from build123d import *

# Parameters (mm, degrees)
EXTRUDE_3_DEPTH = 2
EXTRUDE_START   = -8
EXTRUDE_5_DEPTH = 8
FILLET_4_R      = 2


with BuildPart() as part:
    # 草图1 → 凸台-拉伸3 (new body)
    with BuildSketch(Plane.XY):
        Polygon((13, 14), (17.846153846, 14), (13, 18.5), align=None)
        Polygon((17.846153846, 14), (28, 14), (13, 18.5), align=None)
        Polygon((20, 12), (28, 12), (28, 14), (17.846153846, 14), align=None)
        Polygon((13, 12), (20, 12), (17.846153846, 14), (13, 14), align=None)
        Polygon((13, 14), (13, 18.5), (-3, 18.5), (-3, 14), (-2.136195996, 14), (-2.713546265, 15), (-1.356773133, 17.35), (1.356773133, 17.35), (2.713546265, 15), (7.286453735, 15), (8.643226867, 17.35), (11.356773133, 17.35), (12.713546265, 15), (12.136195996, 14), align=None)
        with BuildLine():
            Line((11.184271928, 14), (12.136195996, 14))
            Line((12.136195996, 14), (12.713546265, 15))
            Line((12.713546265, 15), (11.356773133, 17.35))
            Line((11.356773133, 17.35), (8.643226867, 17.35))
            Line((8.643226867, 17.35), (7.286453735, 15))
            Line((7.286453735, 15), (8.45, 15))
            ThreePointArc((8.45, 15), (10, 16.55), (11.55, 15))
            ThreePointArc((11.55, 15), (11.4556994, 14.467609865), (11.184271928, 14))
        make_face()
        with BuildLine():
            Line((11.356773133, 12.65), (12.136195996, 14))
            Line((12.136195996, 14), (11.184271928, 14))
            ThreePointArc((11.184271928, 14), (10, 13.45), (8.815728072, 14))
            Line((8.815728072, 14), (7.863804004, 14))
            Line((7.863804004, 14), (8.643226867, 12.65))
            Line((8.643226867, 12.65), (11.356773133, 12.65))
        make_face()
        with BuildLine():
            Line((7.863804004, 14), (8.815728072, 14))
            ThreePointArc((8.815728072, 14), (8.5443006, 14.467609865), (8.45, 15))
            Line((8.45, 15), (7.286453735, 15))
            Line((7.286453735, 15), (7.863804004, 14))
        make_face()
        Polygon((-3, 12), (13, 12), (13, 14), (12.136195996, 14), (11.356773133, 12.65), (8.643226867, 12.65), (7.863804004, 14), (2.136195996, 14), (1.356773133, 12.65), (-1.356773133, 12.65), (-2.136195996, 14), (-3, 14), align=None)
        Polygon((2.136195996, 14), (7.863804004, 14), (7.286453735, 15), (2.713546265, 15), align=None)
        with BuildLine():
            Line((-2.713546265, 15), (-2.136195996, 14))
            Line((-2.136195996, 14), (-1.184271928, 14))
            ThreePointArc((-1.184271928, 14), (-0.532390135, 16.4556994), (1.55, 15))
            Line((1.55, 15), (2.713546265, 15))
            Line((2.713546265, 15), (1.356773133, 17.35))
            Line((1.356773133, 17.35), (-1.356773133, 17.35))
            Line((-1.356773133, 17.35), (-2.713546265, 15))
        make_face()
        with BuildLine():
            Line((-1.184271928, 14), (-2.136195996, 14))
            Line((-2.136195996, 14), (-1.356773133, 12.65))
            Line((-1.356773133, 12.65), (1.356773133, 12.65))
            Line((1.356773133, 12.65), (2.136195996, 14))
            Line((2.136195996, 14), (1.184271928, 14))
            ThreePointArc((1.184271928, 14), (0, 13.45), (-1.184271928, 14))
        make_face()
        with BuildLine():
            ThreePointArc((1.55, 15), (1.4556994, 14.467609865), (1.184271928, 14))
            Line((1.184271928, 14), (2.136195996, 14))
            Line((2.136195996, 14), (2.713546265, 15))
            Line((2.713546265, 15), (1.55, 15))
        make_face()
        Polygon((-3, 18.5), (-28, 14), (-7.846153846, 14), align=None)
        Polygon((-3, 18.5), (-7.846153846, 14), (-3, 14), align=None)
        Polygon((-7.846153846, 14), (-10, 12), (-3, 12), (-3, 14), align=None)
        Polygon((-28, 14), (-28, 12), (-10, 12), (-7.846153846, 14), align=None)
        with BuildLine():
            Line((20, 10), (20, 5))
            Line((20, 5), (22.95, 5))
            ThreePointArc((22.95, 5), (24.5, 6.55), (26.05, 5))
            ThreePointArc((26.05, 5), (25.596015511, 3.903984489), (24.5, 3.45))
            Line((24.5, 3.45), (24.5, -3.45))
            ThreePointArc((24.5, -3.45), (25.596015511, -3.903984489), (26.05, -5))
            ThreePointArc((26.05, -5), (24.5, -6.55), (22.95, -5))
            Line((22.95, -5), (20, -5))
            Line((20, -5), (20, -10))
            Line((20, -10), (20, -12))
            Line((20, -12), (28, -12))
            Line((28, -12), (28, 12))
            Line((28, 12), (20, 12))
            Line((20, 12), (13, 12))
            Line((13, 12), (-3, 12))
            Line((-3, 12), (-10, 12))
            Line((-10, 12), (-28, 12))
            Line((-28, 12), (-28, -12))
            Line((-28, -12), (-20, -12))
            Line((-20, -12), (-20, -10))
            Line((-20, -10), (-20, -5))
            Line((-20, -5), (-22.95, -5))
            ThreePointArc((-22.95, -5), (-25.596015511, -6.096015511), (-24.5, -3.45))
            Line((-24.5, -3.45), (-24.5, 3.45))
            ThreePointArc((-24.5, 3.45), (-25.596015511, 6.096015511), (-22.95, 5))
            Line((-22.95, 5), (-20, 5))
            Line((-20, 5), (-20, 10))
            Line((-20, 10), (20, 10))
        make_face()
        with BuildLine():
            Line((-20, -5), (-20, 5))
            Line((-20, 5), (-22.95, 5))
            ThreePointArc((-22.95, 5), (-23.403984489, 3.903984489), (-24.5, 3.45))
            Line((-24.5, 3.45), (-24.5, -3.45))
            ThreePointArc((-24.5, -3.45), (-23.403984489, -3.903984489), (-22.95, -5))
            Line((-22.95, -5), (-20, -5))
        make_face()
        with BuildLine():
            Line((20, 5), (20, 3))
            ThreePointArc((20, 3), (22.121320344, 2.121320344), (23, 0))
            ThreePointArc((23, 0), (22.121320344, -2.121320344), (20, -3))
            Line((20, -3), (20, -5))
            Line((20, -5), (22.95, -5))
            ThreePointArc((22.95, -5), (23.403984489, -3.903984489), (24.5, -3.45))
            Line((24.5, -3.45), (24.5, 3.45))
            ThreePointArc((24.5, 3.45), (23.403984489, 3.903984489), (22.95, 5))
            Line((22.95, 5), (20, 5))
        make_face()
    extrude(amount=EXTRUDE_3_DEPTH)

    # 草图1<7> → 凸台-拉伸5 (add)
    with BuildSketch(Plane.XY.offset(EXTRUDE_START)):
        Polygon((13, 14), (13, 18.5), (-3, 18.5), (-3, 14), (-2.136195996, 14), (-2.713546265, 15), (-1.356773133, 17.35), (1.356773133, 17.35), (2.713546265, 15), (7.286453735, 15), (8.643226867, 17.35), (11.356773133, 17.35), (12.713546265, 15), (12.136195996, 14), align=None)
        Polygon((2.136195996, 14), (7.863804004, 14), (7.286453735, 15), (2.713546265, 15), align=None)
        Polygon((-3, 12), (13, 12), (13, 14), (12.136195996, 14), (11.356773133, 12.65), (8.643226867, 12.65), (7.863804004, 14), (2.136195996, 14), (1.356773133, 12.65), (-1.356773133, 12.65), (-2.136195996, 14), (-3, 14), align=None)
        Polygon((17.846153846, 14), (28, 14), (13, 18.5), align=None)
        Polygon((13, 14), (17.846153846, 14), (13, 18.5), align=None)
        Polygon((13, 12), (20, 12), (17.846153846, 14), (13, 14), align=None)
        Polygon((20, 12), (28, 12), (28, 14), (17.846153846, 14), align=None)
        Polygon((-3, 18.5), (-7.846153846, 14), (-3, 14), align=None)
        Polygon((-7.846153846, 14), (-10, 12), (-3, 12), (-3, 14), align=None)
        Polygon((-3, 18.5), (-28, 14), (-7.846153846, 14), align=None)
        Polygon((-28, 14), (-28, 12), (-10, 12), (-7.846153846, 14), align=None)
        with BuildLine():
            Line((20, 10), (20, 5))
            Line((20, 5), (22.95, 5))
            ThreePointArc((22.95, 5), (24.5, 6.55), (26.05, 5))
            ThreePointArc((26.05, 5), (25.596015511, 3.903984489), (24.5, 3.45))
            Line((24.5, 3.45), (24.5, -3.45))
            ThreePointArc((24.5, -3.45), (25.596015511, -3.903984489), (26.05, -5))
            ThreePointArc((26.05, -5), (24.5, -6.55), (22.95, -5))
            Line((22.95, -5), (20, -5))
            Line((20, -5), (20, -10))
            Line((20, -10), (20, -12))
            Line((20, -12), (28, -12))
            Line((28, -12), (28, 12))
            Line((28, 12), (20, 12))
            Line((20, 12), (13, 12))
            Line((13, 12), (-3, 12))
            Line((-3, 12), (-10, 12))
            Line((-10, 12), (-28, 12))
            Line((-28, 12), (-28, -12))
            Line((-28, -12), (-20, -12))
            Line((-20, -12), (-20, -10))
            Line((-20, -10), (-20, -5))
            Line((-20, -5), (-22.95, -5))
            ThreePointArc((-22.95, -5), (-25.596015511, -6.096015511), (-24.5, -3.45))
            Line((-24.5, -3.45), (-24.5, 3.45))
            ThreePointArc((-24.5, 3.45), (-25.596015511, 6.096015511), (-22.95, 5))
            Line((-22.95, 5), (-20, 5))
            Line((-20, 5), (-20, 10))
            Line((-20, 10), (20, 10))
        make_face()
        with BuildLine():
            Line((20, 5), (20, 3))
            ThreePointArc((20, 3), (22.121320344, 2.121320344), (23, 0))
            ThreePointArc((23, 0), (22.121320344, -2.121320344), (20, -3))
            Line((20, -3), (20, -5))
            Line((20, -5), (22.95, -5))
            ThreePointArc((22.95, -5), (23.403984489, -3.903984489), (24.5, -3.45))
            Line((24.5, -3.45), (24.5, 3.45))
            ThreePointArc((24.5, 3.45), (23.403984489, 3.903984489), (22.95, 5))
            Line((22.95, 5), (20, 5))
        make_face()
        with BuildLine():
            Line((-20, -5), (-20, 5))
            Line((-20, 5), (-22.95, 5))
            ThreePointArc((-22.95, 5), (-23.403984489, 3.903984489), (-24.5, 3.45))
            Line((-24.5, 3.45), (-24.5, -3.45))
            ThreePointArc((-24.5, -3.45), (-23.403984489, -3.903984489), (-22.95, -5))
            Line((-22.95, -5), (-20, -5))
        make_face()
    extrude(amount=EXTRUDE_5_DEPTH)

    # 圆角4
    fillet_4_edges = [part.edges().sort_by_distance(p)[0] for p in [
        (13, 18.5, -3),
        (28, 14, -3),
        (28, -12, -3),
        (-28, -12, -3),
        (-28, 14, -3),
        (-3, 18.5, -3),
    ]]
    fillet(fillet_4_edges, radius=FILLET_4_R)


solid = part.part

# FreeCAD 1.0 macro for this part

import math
import FreeCAD as App
import Part
import Sketcher
Q = App.Units.Quantity


def edges_at(feature, points):
    """Names of the edges that pass closest to the given points."""
    edges = feature.Shape.Edges
    near = lambda p: min(range(len(edges)), key=lambda i: edges[i].distToShape(Part.Vertex(*p))[0])
    return sorted({f"Edge{near(p) + 1}" for p in points})


def add_polygon(sketch, points):
    """Adds a closed chain of lines whose ends are joined by coincident constraints."""
    first, n = sketch.GeometryCount, len(points)
    for a, b in zip(points, points[1:] + points[:1]):
        sketch.addGeometry(Part.LineSegment(App.Vector(*a, 0), App.Vector(*b, 0)), False)
    for i in range(n):
        sketch.addConstraint(Sketcher.Constraint("Coincident", first + i, 2, first + (i + 1) % n, 1))

doc = App.newDocument("Part")
body = doc.addObject("PartDesign::Body", "Body")

# Sketch on XY plane
sketch1 = body.newObject("Sketcher::SketchObject", "Sketch")
sketch1.AttachmentSupport = (doc.getObject("XY_Plane"), [""])
sketch1.MapMode = "FlatFace"
sketch1.addGeometry([
    Part.LineSegment(App.Vector(28, 14, 0), App.Vector(13, 18.5, 0)),  # 0
    Part.LineSegment(App.Vector(13, 18.5, 0), App.Vector(-3, 18.5, 0)),  # 1
    Part.LineSegment(App.Vector(-3, 18.5, 0), App.Vector(-28, 14, 0)),  # 2
    Part.LineSegment(App.Vector(-28, 14, 0), App.Vector(-28, -12, 0)),  # 3
    Part.LineSegment(App.Vector(-28, -12, 0), App.Vector(-20, -12, 0)),  # 4
    Part.LineSegment(App.Vector(-20, -12, 0), App.Vector(-20, 10, 0)),  # 5
    Part.LineSegment(App.Vector(-20, 10, 0), App.Vector(20, 10, 0)),  # 6
    Part.LineSegment(App.Vector(20, 10, 0), App.Vector(20, 3, 0)),  # 7
    Part.ArcOfCircle(Part.Circle(App.Vector(20, 0, 0), App.Vector(0, 0, 1), 3), math.radians(0), math.radians(90)),  # 8
    Part.ArcOfCircle(Part.Circle(App.Vector(20, 0, 0), App.Vector(0, 0, 1), 3), math.radians(-90), math.radians(0)),  # 9
    Part.LineSegment(App.Vector(20, -3, 0), App.Vector(20, -12, 0)),  # 10
    Part.LineSegment(App.Vector(20, -12, 0), App.Vector(28, -12, 0)),  # 11
    Part.LineSegment(App.Vector(28, -12, 0), App.Vector(28, 14, 0)),  # 12
    Part.ArcOfCircle(Part.Circle(App.Vector(24.5, 5, 0), App.Vector(0, 0, 1), 1.6), math.radians(0), math.radians(180)),  # 13
    Part.ArcOfCircle(Part.Circle(App.Vector(24.5, 5, 0), App.Vector(0, 0, 1), 1.5), math.radians(-90), math.radians(0)),  # 14
    Part.ArcOfCircle(Part.Circle(App.Vector(24.5, 5, 0), App.Vector(0, 0, 1), 1.5), math.radians(180), math.radians(270)),  # 15
    Part.ArcOfCircle(Part.Circle(App.Vector(24.5, -5, 0), App.Vector(0, 0, 1), 1.5), math.radians(0), math.radians(90)),  # 16
    Part.ArcOfCircle(Part.Circle(App.Vector(24.5, -5, 0), App.Vector(0, 0, 1), 1.6), math.radians(180), math.radians(360)),  # 17
    Part.ArcOfCircle(Part.Circle(App.Vector(24.5, -5, 0), App.Vector(0, 0, 1), 1.5), math.radians(90), math.radians(180)),  # 18
    Part.ArcOfCircle(Part.Circle(App.Vector(-24.5, -5, 0), App.Vector(0, 0, 1), 1.6), math.radians(90), math.radians(360)),  # 19
    Part.ArcOfCircle(Part.Circle(App.Vector(-24.5, -5, 0), App.Vector(0, 0, 1), 1.5), math.radians(0), math.radians(90)),  # 20
    Part.ArcOfCircle(Part.Circle(App.Vector(-24.5, 5, 0), App.Vector(0, 0, 1), 1.6), math.radians(0), math.radians(270)),  # 21
    Part.ArcOfCircle(Part.Circle(App.Vector(-24.5, 5, 0), App.Vector(0, 0, 1), 1.5), math.radians(-90), math.radians(0)),  # 22
    Part.ArcOfCircle(Part.Circle(App.Vector(0, 15, 0), App.Vector(0, 0, 1), 1.5), math.radians(-140), math.radians(-40)),  # 23
    Part.ArcOfCircle(Part.Circle(App.Vector(0, 15, 0), App.Vector(0, 0, 1), 1.6), math.radians(0), math.radians(220)),  # 24
    Part.ArcOfCircle(Part.Circle(App.Vector(0, 15, 0), App.Vector(0, 0, 1), 1.6), math.radians(-40), math.radians(0)),  # 25
    Part.ArcOfCircle(Part.Circle(App.Vector(10, 15, 0), App.Vector(0, 0, 1), 1.6), math.radians(0), math.radians(180)),  # 26
    Part.ArcOfCircle(Part.Circle(App.Vector(10, 15, 0), App.Vector(0, 0, 1), 1.6), math.radians(-40), math.radians(0)),  # 27
    Part.ArcOfCircle(Part.Circle(App.Vector(10, 15, 0), App.Vector(0, 0, 1), 1.5), math.radians(-140), math.radians(-40)),  # 28
    Part.ArcOfCircle(Part.Circle(App.Vector(10, 15, 0), App.Vector(0, 0, 1), 1.6), math.radians(-180), math.radians(-140)),  # 29
], False)
sketch1.addConstraint([
    Sketcher.Constraint("Coincident", 0, 2, 1, 1),
    Sketcher.Constraint("Coincident", 1, 2, 2, 1),
    Sketcher.Constraint("Coincident", 2, 2, 3, 1),
    Sketcher.Constraint("Coincident", 3, 2, 4, 1),
    Sketcher.Constraint("Coincident", 4, 2, 5, 1),
    Sketcher.Constraint("Coincident", 5, 2, 6, 1),
    Sketcher.Constraint("Coincident", 6, 2, 7, 1),
    Sketcher.Constraint("Coincident", 7, 2, 8, 2),
    Sketcher.Constraint("Tangent", 8, 1, 9, 2),
    Sketcher.Constraint("Coincident", 9, 1, 10, 1),
    Sketcher.Constraint("Coincident", 10, 2, 11, 1),
    Sketcher.Constraint("Coincident", 11, 2, 12, 1),
    Sketcher.Constraint("Coincident", 12, 2, 0, 1),
    Sketcher.Constraint("Tangent", 13, 1, 14, 2),
    Sketcher.Constraint("Tangent", 14, 1, 15, 2),
    Sketcher.Constraint("Tangent", 15, 1, 13, 2),
    Sketcher.Constraint("Tangent", 16, 1, 17, 2),
    Sketcher.Constraint("Tangent", 17, 1, 18, 2),
    Sketcher.Constraint("Tangent", 18, 1, 16, 2),
    Sketcher.Constraint("Tangent", 19, 1, 20, 2),
    Sketcher.Constraint("Coincident", 20, 1, 19, 2),
    Sketcher.Constraint("Tangent", 21, 1, 22, 2),
    Sketcher.Constraint("Coincident", 22, 1, 21, 2),
    Sketcher.Constraint("Tangent", 23, 1, 24, 2),
    Sketcher.Constraint("Tangent", 24, 1, 25, 2),
    Sketcher.Constraint("Tangent", 25, 1, 23, 2),
    Sketcher.Constraint("Tangent", 26, 1, 27, 2),
    Sketcher.Constraint("Tangent", 27, 1, 28, 2),
    Sketcher.Constraint("Tangent", 28, 1, 29, 2),
    Sketcher.Constraint("Tangent", 29, 1, 26, 2),
    Sketcher.Constraint("Horizontal", 1),
    Sketcher.Constraint("Vertical", 3),
    Sketcher.Constraint("Horizontal", 4),
    Sketcher.Constraint("Vertical", 5),
    Sketcher.Constraint("Horizontal", 6),
    Sketcher.Constraint("Vertical", 7),
    Sketcher.Constraint("Vertical", 10),
    Sketcher.Constraint("Horizontal", 11),
    Sketcher.Constraint("Vertical", 12),
    Sketcher.Constraint("Equal", 8, 9),
    Sketcher.Constraint("Equal", 15, 16),
    Sketcher.Constraint("Equal", 18, 19),
    Sketcher.Constraint("Equal", 20, 21),
    Sketcher.Constraint("Equal", 22, 23),
    Sketcher.Constraint("Equal", 25, 26),
    Sketcher.Constraint("Equal", 26, 27),
    Sketcher.Constraint("Symmetric", 13, 3, 19, 3, -1, 1),
    Sketcher.Constraint("Symmetric", 16, 3, 21, 3, -1, 1),
    Sketcher.Constraint("Symmetric", 16, 3, 19, 3, -2),
    Sketcher.Constraint("Symmetric", 4, 2, 10, 2, -2),
    Sketcher.Constraint("Symmetric", 2, 2, 12, 2, -2),
    Sketcher.Constraint("Symmetric", 23, 1, 25, 1, -2),
    Sketcher.Constraint("Symmetric", 7, 2, 9, 1, -1),
    Sketcher.Constraint("PointOnObject", 8, 1, -1),
    Sketcher.Constraint("Horizontal", 25, 3, 26, 3),
    Sketcher.Constraint("Horizontal", 22, 3, 13, 1),
    Sketcher.Constraint("Horizontal", 13, 1, 15, 1),
    Sketcher.Constraint("Horizontal", 20, 3, 16, 1),
    Sketcher.Constraint("Horizontal", 16, 1, 17, 1),
    Sketcher.Constraint("Horizontal", 17, 1, 20, 1),
    Sketcher.Constraint("Horizontal", 15, 1, 21, 1),
    Sketcher.Constraint("Horizontal", 12, 2, 23, 1),
    Sketcher.Constraint("Horizontal", 29, 3, 24, 1),
    Sketcher.Constraint("Horizontal", 24, 1, 26, 1),
    Sketcher.Constraint("Horizontal", 25, 1, 27, 1),
    Sketcher.Constraint("Horizontal", 27, 1, 28, 1),
    Sketcher.Constraint("Horizontal", 26, 1, 29, 1),
    Sketcher.Constraint("Vertical", 9, 3, 6, 2),
    Sketcher.Constraint("Vertical", 18, 3, 14, 1),
    Sketcher.Constraint("Vertical", 14, 1, 18, 1),
    Sketcher.Constraint("Vertical", 22, 3, 19, 1),
    Sketcher.Constraint("Vertical", 19, 1, 22, 1),
    Sketcher.Constraint("Radius", 8, Q("3 mm")),
    Sketcher.Constraint("DistanceX", 1, 2, 1, 1, Q("16 mm")),
    Sketcher.Constraint("DistanceX", 4, 1, 4, 2, Q("8 mm")),
    Sketcher.Constraint("DistanceX", 6, 1, 6, 2, Q("40 mm")),
    Sketcher.Constraint("DistanceY", 3, 2, 3, 1, Q("26 mm")),
    Sketcher.Constraint("DistanceY", 5, 1, 5, 2, Q("22 mm")),
    Sketcher.Constraint("DistanceY", 7, 2, 7, 1, Q("7 mm")),
    Sketcher.Constraint("Radius", 13, Q("1.55 mm")),
    Sketcher.Constraint("DistanceY", -1, 1, 13, 3, Q("5 mm")),
    Sketcher.Constraint("DistanceY", -1, 1, 23, 3, Q("15 mm")),
    Sketcher.Constraint("DistanceX", -1, 1, 26, 3, Q("10 mm")),
    Sketcher.Constraint("DistanceX", -1, 1, 0, 2, Q("13 mm")),
    Sketcher.Constraint("DistanceX", 19, 3, 18, 3, Q("49 mm")),
    Sketcher.Constraint("DistanceY", -1, 1, 0, 2, Q("18.5 mm")),
])
pad1 = body.newObject("PartDesign::Pad", "Pad")
pad1.Profile = sketch1
pad1.Length = 2

# Sketch on XY plane
sketch2 = body.newObject("Sketcher::SketchObject", "Sketch001")
sketch2.AttachmentSupport = (doc.getObject("XY_Plane"), [""])
sketch2.MapMode = "FlatFace"
sketch2.AttachmentOffset = App.Placement(App.Vector(0, 0, -8), App.Rotation())
sketch2.addGeometry(Part.LineSegment(App.Vector(13, 18.5, 0), App.Vector(-3, 18.5, 0)), False)  # 0
sketch2.addGeometry(Part.LineSegment(App.Vector(-3, 18.5, 0), App.Vector(-28, 14, 0)), False)  # 1
sketch2.addGeometry(Part.LineSegment(App.Vector(-28, 14, 0), App.Vector(-28, -12, 0)), False)  # 2
sketch2.addGeometry(Part.LineSegment(App.Vector(-28, -12, 0), App.Vector(-20, -12, 0)), False)  # 3
sketch2.addGeometry(Part.LineSegment(App.Vector(-20, -12, 0), App.Vector(-20, 10, 0)), False)  # 4
sketch2.addGeometry(Part.LineSegment(App.Vector(-20, 10, 0), App.Vector(20, 10, 0)), False)  # 5
sketch2.addGeometry(Part.LineSegment(App.Vector(20, 10, 0), App.Vector(20, 3, 0)), False)  # 6
sketch2.addGeometry(Part.ArcOfCircle(Part.Circle(App.Vector(20, 0, 0), App.Vector(0, 0, 1), 3), math.radians(0), math.radians(90)), False)  # 7
sketch2.addGeometry(Part.ArcOfCircle(Part.Circle(App.Vector(20, 0, 0), App.Vector(0, 0, 1), 3), math.radians(-90), math.radians(0)), False)  # 8
sketch2.addGeometry(Part.LineSegment(App.Vector(20, -3, 0), App.Vector(20, -12, 0)), False)  # 9
sketch2.addGeometry(Part.LineSegment(App.Vector(20, -12, 0), App.Vector(28, -12, 0)), False)  # 10
sketch2.addGeometry(Part.LineSegment(App.Vector(28, -12, 0), App.Vector(28, 14, 0)), False)  # 11
sketch2.addGeometry(Part.LineSegment(App.Vector(28, 14, 0), App.Vector(13, 18.5, 0)), False)  # 12
sketch2.addGeometry(Part.ArcOfCircle(Part.Circle(App.Vector(-24.5, -5, 0), App.Vector(0, 0, 1), 1.6), math.radians(90), math.radians(360)), False)  # 13
sketch2.addGeometry(Part.ArcOfCircle(Part.Circle(App.Vector(-24.5, -5, 0), App.Vector(0, 0, 1), 1.5), math.radians(0), math.radians(90)), False)  # 14
sketch2.addGeometry(Part.ArcOfCircle(Part.Circle(App.Vector(-24.5, 5, 0), App.Vector(0, 0, 1), 1.6), math.radians(0), math.radians(270)), False)  # 15
sketch2.addGeometry(Part.ArcOfCircle(Part.Circle(App.Vector(-24.5, 5, 0), App.Vector(0, 0, 1), 1.5), math.radians(-90), math.radians(0)), False)  # 16
sketch2.addGeometry(Part.ArcOfCircle(Part.Circle(App.Vector(24.5, 5, 0), App.Vector(0, 0, 1), 1.6), math.radians(0), math.radians(180)), False)  # 17
sketch2.addGeometry(Part.ArcOfCircle(Part.Circle(App.Vector(24.5, 5, 0), App.Vector(0, 0, 1), 1.5), math.radians(-90), math.radians(0)), False)  # 18
sketch2.addGeometry(Part.ArcOfCircle(Part.Circle(App.Vector(24.5, 5, 0), App.Vector(0, 0, 1), 1.5), math.radians(180), math.radians(270)), False)  # 19
sketch2.addGeometry(Part.ArcOfCircle(Part.Circle(App.Vector(24.5, -5, 0), App.Vector(0, 0, 1), 1.5), math.radians(0), math.radians(90)), False)  # 20
sketch2.addGeometry(Part.ArcOfCircle(Part.Circle(App.Vector(24.5, -5, 0), App.Vector(0, 0, 1), 1.6), math.radians(180), math.radians(360)), False)  # 21
sketch2.addGeometry(Part.ArcOfCircle(Part.Circle(App.Vector(24.5, -5, 0), App.Vector(0, 0, 1), 1.5), math.radians(90), math.radians(180)), False)  # 22
add_polygon(sketch2, [(-2.1, 14), (-2.7, 15), (-1.4, 17.4), (1.4, 17.4), (2.7, 15), (2.1, 14), (1.4, 12.7), (-1.4, 12.7)])  # lines 23-30
add_polygon(sketch2, [(7.9, 14), (7.3, 15), (8.6, 17.4), (11.4, 17.4), (12.7, 15), (12.1, 14), (11.4, 12.7), (8.6, 12.7)])  # lines 31-38
sketch2.addConstraint([
    Sketcher.Constraint("Coincident", 0, 2, 1, 1),
    Sketcher.Constraint("Coincident", 1, 2, 2, 1),
    Sketcher.Constraint("Coincident", 2, 2, 3, 1),
    Sketcher.Constraint("Coincident", 3, 2, 4, 1),
    Sketcher.Constraint("Coincident", 4, 2, 5, 1),
    Sketcher.Constraint("Coincident", 5, 2, 6, 1),
    Sketcher.Constraint("Coincident", 6, 2, 7, 2),
    Sketcher.Constraint("Tangent", 7, 1, 8, 2),
    Sketcher.Constraint("Coincident", 8, 1, 9, 1),
    Sketcher.Constraint("Coincident", 9, 2, 10, 1),
    Sketcher.Constraint("Coincident", 10, 2, 11, 1),
    Sketcher.Constraint("Coincident", 11, 2, 12, 1),
    Sketcher.Constraint("Coincident", 12, 2, 0, 1),
    Sketcher.Constraint("Tangent", 13, 1, 14, 2),
    Sketcher.Constraint("Coincident", 14, 1, 13, 2),
    Sketcher.Constraint("Tangent", 15, 1, 16, 2),
    Sketcher.Constraint("Coincident", 16, 1, 15, 2),
    Sketcher.Constraint("Tangent", 17, 1, 18, 2),
    Sketcher.Constraint("Tangent", 18, 1, 19, 2),
    Sketcher.Constraint("Tangent", 19, 1, 17, 2),
    Sketcher.Constraint("Tangent", 20, 1, 21, 2),
    Sketcher.Constraint("Tangent", 21, 1, 22, 2),
    Sketcher.Constraint("Tangent", 22, 1, 20, 2),
    Sketcher.Constraint("Horizontal", 0),
    Sketcher.Constraint("Vertical", 2),
    Sketcher.Constraint("Horizontal", 3),
    Sketcher.Constraint("Vertical", 4),
    Sketcher.Constraint("Horizontal", 5),
    Sketcher.Constraint("Vertical", 6),
    Sketcher.Constraint("Vertical", 9),
    Sketcher.Constraint("Horizontal", 10),
    Sketcher.Constraint("Vertical", 11),
    Sketcher.Constraint("Horizontal", 25),
    Sketcher.Constraint("Horizontal", 29),
    Sketcher.Constraint("Horizontal", 33),
    Sketcher.Constraint("Horizontal", 37),
    Sketcher.Constraint("Equal", 7, 8),
    Sketcher.Constraint("Equal", 14, 15),
    Sketcher.Constraint("Equal", 16, 17),
    Sketcher.Constraint("Equal", 19, 20),
    Sketcher.Constraint("Symmetric", 13, 3, 17, 3, -1, 1),
    Sketcher.Constraint("Symmetric", 15, 3, 20, 3, -1, 1),
    Sketcher.Constraint("Symmetric", 15, 3, 17, 3, -2),
    Sketcher.Constraint("Symmetric", 3, 2, 9, 2, -2),
    Sketcher.Constraint("Symmetric", 1, 2, 11, 2, -2),
    Sketcher.Constraint("Symmetric", 23, 2, 26, 2, -2),
    Sketcher.Constraint("Symmetric", 27, 2, 30, 2, -2),
    Sketcher.Constraint("Symmetric", 6, 2, 8, 1, -1),
    Sketcher.Constraint("PointOnObject", 7, 1, -1),
    Sketcher.Constraint("Parallel", 23, 26),
    Sketcher.Constraint("Parallel", 24, 27),
    Sketcher.Constraint("Parallel", 27, 28),
    Sketcher.Constraint("Parallel", 26, 30),
    Sketcher.Constraint("Parallel", 30, 31),
    Sketcher.Constraint("Parallel", 28, 32),
    Sketcher.Constraint("Parallel", 31, 34),
    Sketcher.Constraint("Parallel", 32, 35),
    Sketcher.Constraint("Parallel", 35, 36),
    Sketcher.Constraint("Parallel", 34, 38),
    Sketcher.Constraint("Horizontal", 22, 3, 14, 1),
    Sketcher.Constraint("Horizontal", 19, 3, 15, 1),
    Sketcher.Constraint("Horizontal", 15, 1, 17, 1),
    Sketcher.Constraint("Horizontal", 17, 1, 19, 1),
    Sketcher.Constraint("Horizontal", 14, 1, 20, 1),
    Sketcher.Constraint("Horizontal", 20, 1, 21, 1),
    Sketcher.Constraint("Horizontal", 11, 2, 27, 2),
    Sketcher.Constraint("Horizontal", 26, 2, 31, 2),
    Sketcher.Constraint("Horizontal", 25, 2, 32, 2),
    Sketcher.Constraint("Horizontal", 31, 2, 34, 2),
    Sketcher.Constraint("Horizontal", 30, 2, 35, 2),
    Sketcher.Constraint("Horizontal", 29, 2, 36, 2),
    Sketcher.Constraint("Horizontal", 35, 2, 38, 2),
    Sketcher.Constraint("Vertical", 8, 3, 5, 2),
    Sketcher.Constraint("Vertical", 16, 3, 13, 1),
    Sketcher.Constraint("Vertical", 13, 1, 16, 1),
    Sketcher.Constraint("Vertical", 22, 3, 18, 1),
    Sketcher.Constraint("Vertical", 18, 1, 22, 1),
    Sketcher.Constraint("Vertical", 25, 2, 28, 2),
    Sketcher.Constraint("Equal", 29, 33),
    Sketcher.Constraint("Radius", 7, Q("3 mm")),
    Sketcher.Constraint("DistanceX", 0, 2, 0, 1, Q("16 mm")),
    Sketcher.Constraint("DistanceX", 3, 1, 3, 2, Q("8 mm")),
    Sketcher.Constraint("DistanceX", 5, 1, 5, 2, Q("40 mm")),
    Sketcher.Constraint("DistanceY", 2, 2, 2, 1, Q("26 mm")),
    Sketcher.Constraint("DistanceY", 4, 1, 4, 2, Q("22 mm")),
    Sketcher.Constraint("DistanceY", 6, 2, 6, 1, Q("7 mm")),
    Sketcher.Constraint("Angle", 23, Q("120 deg")),
    Sketcher.Constraint("Radius", 13, Q("1.55 mm")),
    Sketcher.Constraint("DistanceY", 13, 3, -1, 1, Q("5 mm")),
    Sketcher.Constraint("DistanceX", 0, 2, -1, 1, Q("3 mm")),
    Sketcher.Constraint("DistanceY", -1, 1, 23, 2, Q("15 mm")),
    Sketcher.Constraint("DistanceX", 16, 3, 17, 3, Q("49 mm")),
    Sketcher.Constraint("DistanceY", -1, 1, 0, 2, Q("18.5 mm")),
    Sketcher.Constraint("DistanceY", 28, 2, 25, 2, Q("4.7 mm")),
    Sketcher.Constraint("DistanceX", 25, 1, 25, 2, Q("2.713546 mm")),
    Sketcher.Constraint("DistanceX", 28, 2, 31, 2, Q("5.929681 mm")),
])
pad2 = body.newObject("PartDesign::Pad", "Pad001")
pad2.Profile = sketch2
pad2.Length = 8
doc.recompute()

fillet = body.newObject("PartDesign::Fillet", "Fillet")
fillet.Base = (pad2, edges_at(pad2, [
    (13, 18.5, -3),
    (28, 14, -3),
    (28, -12, -3),
    (-28, -12, -3),
    (-28, 14, -3),
    (-3, 18.5, -3),
]))
fillet.Radius = 2

doc.recompute()
